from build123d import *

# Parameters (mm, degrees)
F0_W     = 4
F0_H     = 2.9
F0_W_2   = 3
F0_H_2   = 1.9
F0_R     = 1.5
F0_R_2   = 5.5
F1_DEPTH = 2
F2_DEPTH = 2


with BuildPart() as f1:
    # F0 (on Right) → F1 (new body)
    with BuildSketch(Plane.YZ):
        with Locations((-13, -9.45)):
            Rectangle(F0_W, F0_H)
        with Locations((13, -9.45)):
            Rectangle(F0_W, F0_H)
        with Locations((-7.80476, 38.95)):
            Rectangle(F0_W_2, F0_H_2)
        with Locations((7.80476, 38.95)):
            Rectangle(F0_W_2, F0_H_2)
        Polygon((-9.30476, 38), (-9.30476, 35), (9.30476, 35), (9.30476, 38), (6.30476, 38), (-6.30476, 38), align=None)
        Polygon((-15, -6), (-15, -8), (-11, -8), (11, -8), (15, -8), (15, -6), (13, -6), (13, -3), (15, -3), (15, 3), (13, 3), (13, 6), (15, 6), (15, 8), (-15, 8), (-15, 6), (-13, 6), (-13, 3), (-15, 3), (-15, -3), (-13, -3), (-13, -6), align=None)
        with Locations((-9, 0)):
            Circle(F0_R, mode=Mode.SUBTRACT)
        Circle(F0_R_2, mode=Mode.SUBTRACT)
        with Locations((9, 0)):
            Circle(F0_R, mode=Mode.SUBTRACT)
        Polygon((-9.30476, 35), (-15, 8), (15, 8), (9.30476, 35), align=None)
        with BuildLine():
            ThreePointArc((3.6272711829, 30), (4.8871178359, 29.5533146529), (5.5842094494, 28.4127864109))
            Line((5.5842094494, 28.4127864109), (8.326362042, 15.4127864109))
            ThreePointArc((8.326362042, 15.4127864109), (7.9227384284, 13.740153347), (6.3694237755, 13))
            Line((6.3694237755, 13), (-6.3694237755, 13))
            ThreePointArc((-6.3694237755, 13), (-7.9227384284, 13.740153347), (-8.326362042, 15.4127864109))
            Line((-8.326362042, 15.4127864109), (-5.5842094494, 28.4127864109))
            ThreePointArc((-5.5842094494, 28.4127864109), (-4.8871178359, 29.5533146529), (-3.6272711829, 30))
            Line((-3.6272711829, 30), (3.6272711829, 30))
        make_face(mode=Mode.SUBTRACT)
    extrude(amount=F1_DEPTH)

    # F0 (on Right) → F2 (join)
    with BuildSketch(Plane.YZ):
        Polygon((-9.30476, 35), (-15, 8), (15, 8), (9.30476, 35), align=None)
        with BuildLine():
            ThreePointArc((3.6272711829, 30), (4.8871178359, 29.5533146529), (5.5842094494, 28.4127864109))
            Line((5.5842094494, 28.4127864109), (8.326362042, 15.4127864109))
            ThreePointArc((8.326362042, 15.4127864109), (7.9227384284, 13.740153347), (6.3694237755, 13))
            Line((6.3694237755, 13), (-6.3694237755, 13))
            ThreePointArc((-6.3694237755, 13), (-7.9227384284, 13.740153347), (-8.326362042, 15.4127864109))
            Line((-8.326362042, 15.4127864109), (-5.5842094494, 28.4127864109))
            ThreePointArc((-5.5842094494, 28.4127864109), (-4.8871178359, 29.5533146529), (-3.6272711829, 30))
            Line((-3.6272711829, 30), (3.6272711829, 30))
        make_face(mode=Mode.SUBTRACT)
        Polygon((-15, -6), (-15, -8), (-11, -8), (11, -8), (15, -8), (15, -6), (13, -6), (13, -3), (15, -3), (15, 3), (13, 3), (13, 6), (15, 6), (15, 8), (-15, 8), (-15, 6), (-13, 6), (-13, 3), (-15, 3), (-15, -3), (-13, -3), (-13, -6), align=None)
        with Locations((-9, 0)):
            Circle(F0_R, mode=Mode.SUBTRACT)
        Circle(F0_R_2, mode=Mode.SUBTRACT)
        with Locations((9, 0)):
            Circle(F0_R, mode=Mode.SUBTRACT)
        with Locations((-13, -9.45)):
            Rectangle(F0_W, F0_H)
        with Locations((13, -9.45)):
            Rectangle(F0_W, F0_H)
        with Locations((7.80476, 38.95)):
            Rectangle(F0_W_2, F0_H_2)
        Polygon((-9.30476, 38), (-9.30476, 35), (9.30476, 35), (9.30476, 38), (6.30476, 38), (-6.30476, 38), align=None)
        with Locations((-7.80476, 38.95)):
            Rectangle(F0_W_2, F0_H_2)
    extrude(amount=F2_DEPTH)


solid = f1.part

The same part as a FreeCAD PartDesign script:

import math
import FreeCAD as App
import Part
import Sketcher

V = App.Vector


def add_polygon(sketch, points):
    """Adds a closed chain of lines whose ends are joined by coincident constraints."""
    first, n = sketch.GeometryCount, len(points)
    for a, b in zip(points, points[1:] + points[:1]):
        sketch.addGeometry(Part.LineSegment(App.Vector(*a, 0), App.Vector(*b, 0)), False)
    for i in range(n):
        sketch.addConstraint(Sketcher.Constraint("Coincident", first + i, 2, first + (i + 1) % n, 1))

doc = App.newDocument("Part")
body = doc.addObject("PartDesign::Body", "Body")

# Sketch on YZ plane
sketch1 = body.newObject("Sketcher::SketchObject", "Sketch")
sketch1.AttachmentSupport = (doc.getObject("YZ_Plane"), [""])
sketch1.MapMode = "FlatFace"
add_polygon(sketch1, [(-15, -10.9), (-11, -10.9), (-11, -8), (11, -8), (11, -10.9), (15, -10.9), (15, -6), (13, -6), (13, -3), (15, -3), (15, 3), (13, 3), (13, 6), (15, 6), (15, 8), (9.3, 35), (9.3, 39.9), (6.3, 39.9), (6.3, 38), (-6.3, 38), (-6.3, 39.9), (-9.3, 39.9), (-9.3, 35), (-15, 8), (-15, 6), (-13, 6), (-13, 3), (-15, 3), (-15, -3), (-13, -3), (-13, -6), (-15, -6)])  # lines 0-31
sketch1.addGeometry(Part.Circle(V(-9, 0, 0), V(0, 0, 1), 1.5), False)  # 32
sketch1.addGeometry(Part.Circle(V(0, 0, 0), V(0, 0, 1), 5.5), False)  # 33
sketch1.addGeometry(Part.Circle(V(9, 0, 0), V(0, 0, 1), 1.5), False)  # 34
sketch1.addGeometry(Part.LineSegment(V(-3.6, 30, 0), V(3.6, 30, 0)), False)  # 35
sketch1.addGeometry(Part.ArcOfCircle(Part.Circle(V(3.6, 28, 0), V(0, 0, 1), 2), math.radians(12), math.radians(90)), False)  # 36
sketch1.addGeometry(Part.LineSegment(V(5.6, 28.4, 0), V(8.3, 15.4, 0)), False)  # 37
sketch1.addGeometry(Part.ArcOfCircle(Part.Circle(V(6.4, 15, 0), V(0, 0, 1), 2), math.radians(-90), math.radians(12)), False)  # 38
sketch1.addGeometry(Part.LineSegment(V(6.4, 13, 0), V(-6.4, 13, 0)), False)  # 39
sketch1.addGeometry(Part.ArcOfCircle(Part.Circle(V(-6.4, 15, 0), V(0, 0, 1), 2), math.radians(168), math.radians(270)), False)  # 40
sketch1.addGeometry(Part.LineSegment(V(-8.3, 15.4, 0), V(-5.6, 28.4, 0)), False)  # 41
sketch1.addGeometry(Part.ArcOfCircle(Part.Circle(V(-3.6, 28, 0), V(0, 0, 1), 2), math.radians(90), math.radians(168)), False)  # 42
sketch1.addConstraint(Sketcher.Constraint("Tangent", 35, 2, 36, 2))
sketch1.addConstraint(Sketcher.Constraint("Tangent", 36, 1, 37, 1))
sketch1.addConstraint(Sketcher.Constraint("Tangent", 37, 2, 38, 2))
sketch1.addConstraint(Sketcher.Constraint("Tangent", 38, 1, 39, 1))
sketch1.addConstraint(Sketcher.Constraint("Tangent", 39, 2, 40, 2))
sketch1.addConstraint(Sketcher.Constraint("Tangent", 40, 1, 41, 1))
sketch1.addConstraint(Sketcher.Constraint("Tangent", 41, 2, 42, 2))
sketch1.addConstraint(Sketcher.Constraint("Tangent", 42, 1, 35, 1))
sketch1.addConstraint(Sketcher.Constraint("Horizontal", 0))
sketch1.addConstraint(Sketcher.Constraint("Vertical", 1))
sketch1.addConstraint(Sketcher.Constraint("Horizontal", 2))
sketch1.addConstraint(Sketcher.Constraint("Vertical", 3))
sketch1.addConstraint(Sketcher.Constraint("Horizontal", 4))
sketch1.addConstraint(Sketcher.Constraint("Vertical", 5))
sketch1.addConstraint(Sketcher.Constraint("Horizontal", 6))
sketch1.addConstraint(Sketcher.Constraint("Vertical", 7))
sketch1.addConstraint(Sketcher.Constraint("Horizontal", 8))
sketch1.addConstraint(Sketcher.Constraint("Vertical", 9))
sketch1.addConstraint(Sketcher.Constraint("Horizontal", 10))
sketch1.addConstraint(Sketcher.Constraint("Vertical", 11))
sketch1.addConstraint(Sketcher.Constraint("Horizontal", 12))
sketch1.addConstraint(Sketcher.Constraint("Vertical", 13))
sketch1.addConstraint(Sketcher.Constraint("Vertical", 15))
sketch1.addConstraint(Sketcher.Constraint("Horizontal", 16))
sketch1.addConstraint(Sketcher.Constraint("Vertical", 17))
sketch1.addConstraint(Sketcher.Constraint("Horizontal", 18))
sketch1.addConstraint(Sketcher.Constraint("Vertical", 19))
sketch1.addConstraint(Sketcher.Constraint("Horizontal", 20))
sketch1.addConstraint(Sketcher.Constraint("Vertical", 21))
sketch1.addConstraint(Sketcher.Constraint("Vertical", 23))
sketch1.addConstraint(Sketcher.Constraint("Horizontal", 24))
sketch1.addConstraint(Sketcher.Constraint("Vertical", 25))
sketch1.addConstraint(Sketcher.Constraint("Horizontal", 26))
sketch1.addConstraint(Sketcher.Constraint("Vertical", 27))
sketch1.addConstraint(Sketcher.Constraint("Horizontal", 28))
sketch1.addConstraint(Sketcher.Constraint("Vertical", 29))
sketch1.addConstraint(Sketcher.Constraint("Horizontal", 30))
sketch1.addConstraint(Sketcher.Constraint("Vertical", 31))
sketch1.addConstraint(Sketcher.Constraint("Horizontal", 35))
sketch1.addConstraint(Sketcher.Constraint("Horizontal", 39))
sketch1.addConstraint(Sketcher.Constraint("Coincident", 33, 3, -1, 1))
sketch1.addConstraint(Sketcher.Constraint("Equal", 32, 34))
sketch1.addConstraint(Sketcher.Constraint("Equal", 36, 38))
sketch1.addConstraint(Sketcher.Constraint("Equal", 38, 40))
sketch1.addConstraint(Sketcher.Constraint("Equal", 40, 42))
sketch1.addConstraint(Sketcher.Constraint("Symmetric", 32, 3, 34, 3, -1, 1))
sketch1.addConstraint(Sketcher.Constraint("Symmetric", 5, 2, 23, 2, -1, 1))
sketch1.addConstraint(Sketcher.Constraint("Symmetric", 7, 2, 25, 2, -1, 1))
sketch1.addConstraint(Sketcher.Constraint("Symmetric", 9, 2, 27, 2, -1, 1))
sketch1.addConstraint(Sketcher.Constraint("Symmetric", 11, 2, 29, 2, -1, 1))
sketch1.addConstraint(Sketcher.Constraint("Symmetric", 0, 2, 3, 2, -2))
sketch1.addConstraint(Sketcher.Constraint("Symmetric", 16, 2, 19, 2, -2))
sketch1.addConstraint(Sketcher.Constraint("Symmetric", 14, 2, 21, 2, -2))
sketch1.addConstraint(Sketcher.Constraint("Symmetric", 13, 2, 22, 2, -2))
sketch1.addConstraint(Sketcher.Constraint("Symmetric", 11, 2, 24, 2, -2))
sketch1.addConstraint(Sketcher.Constraint("Symmetric", 37, 2, 40, 1, -2))
sketch1.addConstraint(Sketcher.Constraint("PointOnObject", 32, 3, -1))
sketch1.addConstraint(Sketcher.Constraint("Parallel", 14, 37))
sketch1.addConstraint(Sketcher.Constraint("Horizontal", 10, 2, 25, 2))
sketch1.addConstraint(Sketcher.Constraint("Vertical", 5, 2, 8, 2))
sketch1.addConstraint(Sketcher.Constraint("Vertical", 27, 2, 30, 2))
sketch1.addConstraint(Sketcher.Constraint("Equal", 20, 7))
sketch1.addConstraint(Sketcher.Constraint("Equal", 30, 13))
sketch1.addConstraint(Sketcher.Constraint("Equal", 5, 15))
sketch1.addConstraint(Sketcher.Constraint("Diameter", 32, 3.0))
sketch1.addConstraint(Sketcher.Constraint("Diameter", 33, 11.0))
sketch1.addConstraint(Sketcher.Constraint("Radius", 36, 2.0))
sketch1.addConstraint(Sketcher.Constraint("DistanceX", 0, 1, 0, 2, 4.0))
sketch1.addConstraint(Sketcher.Constraint("DistanceX", 2, 1, 2, 2, 22.0))
sketch1.addConstraint(Sketcher.Constraint("DistanceX", 6, 2, 6, 1, 2.0))
sketch1.addConstraint(Sketcher.Constraint("DistanceX", 16, 2, 16, 1, 3.0))
sketch1.addConstraint(Sketcher.Constraint("DistanceY", 9, 1, 9, 2, 6.0))
sketch1.addConstraint(Sketcher.Constraint("DistanceY", 1, 1, 1, 2, 2.9))
sketch1.addConstraint(Sketcher.Constraint("DistanceY", 5, 1, 5, 2, 4.9))
sketch1.addConstraint(Sketcher.Constraint("DistanceY", 17, 2, 17, 1, 1.9))
sketch1.addConstraint(Sketcher.Constraint("DistanceX", 32, 3, -1, 1, 9.0))
sketch1.addConstraint(Sketcher.Constraint("DistanceY", -1, 1, 36, 3, 28.0))
sketch1.addConstraint(Sketcher.Constraint("DistanceY", -1, 1, 38, 3, 15.0))
sketch1.addConstraint(Sketcher.Constraint("DistanceY", -1, 1, 14, 2, 35.0))
sketch1.addConstraint(Sketcher.Constraint("DistanceX", 18, 2, 18, 1, 12.60952))
sketch1.addConstraint(Sketcher.Constraint("DistanceX", 35, 1, 35, 2, 7.254542))
pad1 = body.newObject("PartDesign::Pad", "Pad")
pad1.Profile = sketch1
pad1.Length = 2

# Sketch on YZ plane
sketch2 = body.newObject("Sketcher::SketchObject", "Sketch001")
sketch2.AttachmentSupport = (doc.getObject("YZ_Plane"), [""])
sketch2.MapMode = "FlatFace"
add_polygon(sketch2, [(-9.3, 35), (-15, 8), (-15, 6), (-13, 6), (-13, 3), (-15, 3), (-15, -3), (-13, -3), (-13, -6), (-15, -6), (-15, -10.9), (-11, -10.9), (-11, -8), (11, -8), (11, -10.9), (15, -10.9), (15, -6), (13, -6), (13, -3), (15, -3), (15, 3), (13, 3), (13, 6), (15, 6), (15, 8), (9.3, 35), (9.3, 39.9), (6.3, 39.9), (6.3, 38), (-6.3, 38), (-6.3, 39.9), (-9.3, 39.9)])  # lines 0-31
sketch2.addGeometry(Part.Circle(V(-9, 0, 0), V(0, 0, 1), 1.5), False)  # 32
sketch2.addGeometry(Part.Circle(V(0, 0, 0), V(0, 0, 1), 5.5), False)  # 33
sketch2.addGeometry(Part.Circle(V(9, 0, 0), V(0, 0, 1), 1.5), False)  # 34
sketch2.addGeometry(Part.LineSegment(V(-3.6, 30, 0), V(3.6, 30, 0)), False)  # 35
sketch2.addGeometry(Part.ArcOfCircle(Part.Circle(V(3.6, 28, 0), V(0, 0, 1), 2), math.radians(12), math.radians(90)), False)  # 36
sketch2.addGeometry(Part.LineSegment(V(5.6, 28.4, 0), V(8.3, 15.4, 0)), False)  # 37
sketch2.addGeometry(Part.ArcOfCircle(Part.Circle(V(6.4, 15, 0), V(0, 0, 1), 2), math.radians(-90), math.radians(12)), False)  # 38
sketch2.addGeometry(Part.LineSegment(V(6.4, 13, 0), V(-6.4, 13, 0)), False)  # 39
sketch2.addGeometry(Part.ArcOfCircle(Part.Circle(V(-6.4, 15, 0), V(0, 0, 1), 2), math.radians(168), math.radians(270)), False)  # 40
sketch2.addGeometry(Part.LineSegment(V(-8.3, 15.4, 0), V(-5.6, 28.4, 0)), False)  # 41
sketch2.addGeometry(Part.ArcOfCircle(Part.Circle(V(-3.6, 28, 0), V(0, 0, 1), 2), math.radians(90), math.radians(168)), False)  # 42
sketch2.addConstraint(Sketcher.Constraint("Tangent", 35, 2, 36, 2))
sketch2.addConstraint(Sketcher.Constraint("Tangent", 36, 1, 37, 1))
sketch2.addConstraint(Sketcher.Constraint("Tangent", 37, 2, 38, 2))
sketch2.addConstraint(Sketcher.Constraint("Tangent", 38, 1, 39, 1))
sketch2.addConstraint(Sketcher.Constraint("Tangent", 39, 2, 40, 2))
sketch2.addConstraint(Sketcher.Constraint("Tangent", 40, 1, 41, 1))
sketch2.addConstraint(Sketcher.Constraint("Tangent", 41, 2, 42, 2))
sketch2.addConstraint(Sketcher.Constraint("Tangent", 42, 1, 35, 1))
sketch2.addConstraint(Sketcher.Constraint("Vertical", 1))
sketch2.addConstraint(Sketcher.Constraint("Horizontal", 2))
sketch2.addConstraint(Sketcher.Constraint("Vertical", 3))
sketch2.addConstraint(Sketcher.Constraint("Horizontal", 4))
sketch2.addConstraint(Sketcher.Constraint("Vertical", 5))
sketch2.addConstraint(Sketcher.Constraint("Horizontal", 6))
sketch2.addConstraint(Sketcher.Constraint("Vertical", 7))
sketch2.addConstraint(Sketcher.Constraint("Horizontal", 8))
sketch2.addConstraint(Sketcher.Constraint("Vertical", 9))
sketch2.addConstraint(Sketcher.Constraint("Horizontal", 10))
sketch2.addConstraint(Sketcher.Constraint("Vertical", 11))
sketch2.addConstraint(Sketcher.Constraint("Horizontal", 12))
sketch2.addConstraint(Sketcher.Constraint("Vertical", 13))
sketch2.addConstraint(Sketcher.Constraint("Horizontal", 14))
sketch2.addConstraint(Sketcher.Constraint("Vertical", 15))
sketch2.addConstraint(Sketcher.Constraint("Horizontal", 16))
sketch2.addConstraint(Sketcher.Constraint("Vertical", 17))
sketch2.addConstraint(Sketcher.Constraint("Horizontal", 18))
sketch2.addConstraint(Sketcher.Constraint("Vertical", 19))
sketch2.addConstraint(Sketcher.Constraint("Horizontal", 20))
sketch2.addConstraint(Sketcher.Constraint("Vertical", 21))
sketch2.addConstraint(Sketcher.Constraint("Horizontal", 22))
sketch2.addConstraint(Sketcher.Constraint("Vertical", 23))
sketch2.addConstraint(Sketcher.Constraint("Vertical", 25))
sketch2.addConstraint(Sketcher.Constraint("Horizontal", 26))
sketch2.addConstraint(Sketcher.Constraint("Vertical", 27))
sketch2.addConstraint(Sketcher.Constraint("Horizontal", 28))
sketch2.addConstraint(Sketcher.Constraint("Vertical", 29))
sketch2.addConstraint(Sketcher.Constraint("Horizontal", 30))
sketch2.addConstraint(Sketcher.Constraint("Vertical", 31))
sketch2.addConstraint(Sketcher.Constraint("Horizontal", 35))
sketch2.addConstraint(Sketcher.Constraint("Horizontal", 39))
sketch2.addConstraint(Sketcher.Constraint("Coincident", 33, 3, -1, 1))
sketch2.addConstraint(Sketcher.Constraint("Equal", 32, 34))
sketch2.addConstraint(Sketcher.Constraint("Equal", 36, 38))
sketch2.addConstraint(Sketcher.Constraint("Equal", 38, 40))
sketch2.addConstraint(Sketcher.Constraint("Equal", 40, 42))
sketch2.addConstraint(Sketcher.Constraint("Symmetric", 32, 3, 34, 3, -1, 1))
sketch2.addConstraint(Sketcher.Constraint("Symmetric", 1, 2, 15, 2, -1, 1))
sketch2.addConstraint(Sketcher.Constraint("Symmetric", 3, 2, 17, 2, -1, 1))
sketch2.addConstraint(Sketcher.Constraint("Symmetric", 5, 2, 19, 2, -1, 1))
sketch2.addConstraint(Sketcher.Constraint("Symmetric", 7, 2, 21, 2, -1, 1))
sketch2.addConstraint(Sketcher.Constraint("Symmetric", 10, 2, 13, 2, -2))
sketch2.addConstraint(Sketcher.Constraint("Symmetric", 8, 2, 15, 2, -2))
sketch2.addConstraint(Sketcher.Constraint("Symmetric", 6, 2, 17, 2, -2))
sketch2.addConstraint(Sketcher.Constraint("Symmetric", 0, 2, 23, 2, -2))
sketch2.addConstraint(Sketcher.Constraint("Symmetric", 26, 2, 29, 2, -2))
sketch2.addConstraint(Sketcher.Constraint("Symmetric", 24, 2, 31, 2, -2))
sketch2.addConstraint(Sketcher.Constraint("Symmetric", 37, 2, 40, 1, -2))
sketch2.addConstraint(Sketcher.Constraint("PointOnObject", 32, 3, -1))
sketch2.addConstraint(Sketcher.Constraint("Parallel", 24, 37))
sketch2.addConstraint(Sketcher.Constraint("Vertical", 1, 2, 4, 2))
sketch2.addConstraint(Sketcher.Constraint("Equal", 22, 1))
sketch2.addConstraint(Sketcher.Constraint("Equal", 30, 3))
sketch2.addConstraint(Sketcher.Constraint("Equal", 15, 25))
sketch2.addConstraint(Sketcher.Constraint("Diameter", 32, 3.0))
sketch2.addConstraint(Sketcher.Constraint("Diameter", 33, 11.0))
sketch2.addConstraint(Sketcher.Constraint("Radius", 36, 2.0))
sketch2.addConstraint(Sketcher.Constraint("DistanceX", 2, 1, 2, 2, 2.0))
sketch2.addConstraint(Sketcher.Constraint("DistanceX", 10, 1, 10, 2, 4.0))
sketch2.addConstraint(Sketcher.Constraint("DistanceX", 12, 1, 12, 2, 22.0))
sketch2.addConstraint(Sketcher.Constraint("DistanceX", 26, 2, 26, 1, 3.0))
sketch2.addConstraint(Sketcher.Constraint("DistanceY", 5, 2, 5, 1, 6.0))
sketch2.addConstraint(Sketcher.Constraint("DistanceY", 9, 2, 9, 1, 4.9))
sketch2.addConstraint(Sketcher.Constraint("DistanceY", 11, 1, 11, 2, 2.9))
sketch2.addConstraint(Sketcher.Constraint("DistanceY", 27, 2, 27, 1, 1.9))
sketch2.addConstraint(Sketcher.Constraint("DistanceX", 32, 3, -1, 1, 9.0))
sketch2.addConstraint(Sketcher.Constraint("DistanceY", -1, 1, 36, 3, 28.0))
sketch2.addConstraint(Sketcher.Constraint("DistanceY", -1, 1, 38, 3, 15.0))
sketch2.addConstraint(Sketcher.Constraint("DistanceY", -1, 1, 24, 2, 35.0))
sketch2.addConstraint(Sketcher.Constraint("DistanceX", 28, 2, 28, 1, 12.60952))
sketch2.addConstraint(Sketcher.Constraint("DistanceX", 35, 1, 35, 2, 7.254542))
pad2 = body.newObject("PartDesign::Pad", "Pad001")
pad2.Profile = sketch2
pad2.Length = 2

doc.recompute()
